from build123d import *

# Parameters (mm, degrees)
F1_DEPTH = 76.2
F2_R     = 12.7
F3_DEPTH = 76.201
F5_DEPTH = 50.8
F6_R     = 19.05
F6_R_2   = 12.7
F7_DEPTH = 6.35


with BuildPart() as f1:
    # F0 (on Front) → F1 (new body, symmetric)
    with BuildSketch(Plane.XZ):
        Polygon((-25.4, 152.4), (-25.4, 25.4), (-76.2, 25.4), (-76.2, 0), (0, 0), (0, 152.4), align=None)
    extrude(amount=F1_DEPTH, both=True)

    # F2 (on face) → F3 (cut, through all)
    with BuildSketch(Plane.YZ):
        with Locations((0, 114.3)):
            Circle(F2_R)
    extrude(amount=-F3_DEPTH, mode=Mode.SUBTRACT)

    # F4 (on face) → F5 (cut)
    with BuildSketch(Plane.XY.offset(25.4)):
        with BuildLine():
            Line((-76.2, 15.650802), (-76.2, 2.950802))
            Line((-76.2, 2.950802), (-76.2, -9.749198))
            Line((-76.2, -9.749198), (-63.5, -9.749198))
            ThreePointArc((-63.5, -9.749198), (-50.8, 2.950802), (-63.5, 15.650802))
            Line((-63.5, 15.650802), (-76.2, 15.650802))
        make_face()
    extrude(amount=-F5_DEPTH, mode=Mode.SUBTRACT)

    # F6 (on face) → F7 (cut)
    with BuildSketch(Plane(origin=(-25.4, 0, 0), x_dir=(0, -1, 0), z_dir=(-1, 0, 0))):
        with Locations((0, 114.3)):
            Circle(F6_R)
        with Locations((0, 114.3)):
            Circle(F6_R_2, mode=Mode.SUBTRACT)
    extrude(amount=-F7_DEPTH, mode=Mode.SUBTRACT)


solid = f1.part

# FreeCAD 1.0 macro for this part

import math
import FreeCAD as App
import Part
import Sketcher
from FreeCAD import Vector
Q = App.Units.Quantity


def add_polygon(sketch, points):
    """Adds a closed chain of lines whose ends are joined by coincident constraints."""
    first, n = sketch.GeometryCount, len(points)
    for a, b in zip(points, points[1:] + points[:1]):
        sketch.addGeometry(Part.LineSegment(App.Vector(*a, 0), App.Vector(*b, 0)), False)
    for i in range(n):
        sketch.addConstraint(Sketcher.Constraint("Coincident", first + i, 2, first + (i + 1) % n, 1))

doc = App.newDocument("Part")
params = doc.addObject("Spreadsheet::Sheet", "Params")
for row, (alias, value) in enumerate([
    ("sketch1_width", "2 in"),
    ("sketch1_width2", "3 in"),
    ("sketch1_height", "5 in"),
    ("pad1_length", "6 in"),
    ("sketch2_diameter", "1 in"),
    ("sketch3_radius", "0.5 in"),
    ("sketch3_width", "0.5 in"),
    ("pocket2_length", "2 in"),
    ("sketch4_diameter", "1 in"),
    ("sketch4_diameter2", "1.5 in"),
    ("pocket3_length", "0.25 in"),
], start=1):
    params.set(f"A{row}", alias)
    params.set(f"B{row}", "=" + value)
    params.setAlias(f"B{row}", alias)

body = doc.addObject("PartDesign::Body", "Body")

sketch1 = body.newObject("Sketcher::SketchObject", "Sketch")
sketch1.AttachmentSupport = (doc.getObject("XZ_Plane"), [""])
sketch1.MapMode = "FlatFace"
add_polygon(sketch1, [(-25, 152), (-25, 25), (-76, 25), (-76, 0), (0, 0), (0, 152)])
sketch1.addConstraint(Sketcher.Constraint("Vertical", 0))
sketch1.addConstraint(Sketcher.Constraint("Horizontal", 1))
sketch1.addConstraint(Sketcher.Constraint("Vertical", 2))
sketch1.addConstraint(Sketcher.Constraint("Horizontal", 3))
sketch1.addConstraint(Sketcher.Constraint("Vertical", 4))
sketch1.addConstraint(Sketcher.Constraint("Horizontal", 5))
sketch1.addConstraint(Sketcher.Constraint("Coincident", 3, 2, -1, 1))
sketch1.addConstraint(Sketcher.Constraint("Equal", 5, 2))
sketch1.addConstraint(Sketcher.Constraint("DistanceX", 1, 2, 1, 1, Q("2 in")))
sketch1.addConstraint(Sketcher.Constraint("DistanceX", 3, 1, 3, 2, Q("3 in")))
sketch1.addConstraint(Sketcher.Constraint("DistanceY", 0, 2, 0, 1, Q("5 in")))
sketch1.setExpression("Constraints[14]", "Params.sketch1_width")
sketch1.setExpression("Constraints[15]", "Params.sketch1_width2")
sketch1.setExpression("Constraints[16]", "Params.sketch1_height")
pad1 = body.newObject("PartDesign::Pad", "Pad")
pad1.Profile = sketch1
pad1.setExpression("Length", "Params.pad1_length")
pad1.Midplane = True

sketch2 = body.newObject("Sketcher::SketchObject", "Sketch001")
sketch2.AttachmentSupport = (doc.getObject("YZ_Plane"), [""])
sketch2.MapMode = "FlatFace"
sketch2.addGeometry(Part.Circle(Vector(0, 114, 0), Vector(0, 0, 1), 13), False)
sketch2.addConstraint(Sketcher.Constraint("PointOnObject", 0, 3, -2))
sketch2.addConstraint(Sketcher.Constraint("Diameter", 0, Q("1 in")))
sketch2.addConstraint(Sketcher.Constraint("DistanceY", -1, 1, 0, 3, Q("4.5 in")))
sketch2.setExpression("Constraints[1]", "Params.sketch2_diameter")
pocket1 = body.newObject("PartDesign::Pocket", "Pocket")
pocket1.Profile = sketch2
pocket1.Type = "ThroughAll"

sketch3 = body.newObject("Sketcher::SketchObject", "Sketch002")
sketch3.AttachmentSupport = (doc.getObject("XY_Plane"), [""])
sketch3.MapMode = "FlatFace"
sketch3.AttachmentOffset = App.Placement(Vector(0, 0, 1 * 25.4), App.Rotation())
sketch3.addGeometry(Part.LineSegment(Vector(-76, 16, 0), Vector(-76, -10, 0)), False)
sketch3.addGeometry(Part.LineSegment(Vector(-76, -10, 0), Vector(-64, -10, 0)), False)
sketch3.addGeometry(Part.ArcOfCircle(Part.Circle(Vector(-64, 3, 0), Vector(0, 0, 1), 13), math.radians(-90), math.radians(90)), False)
sketch3.addGeometry(Part.LineSegment(Vector(-64, 16, 0), Vector(-76, 16, 0)), False)
sketch3.addConstraint(Sketcher.Constraint("Coincident", 0, 2, 1, 1))
sketch3.addConstraint(Sketcher.Constraint("Tangent", 1, 2, 2, 1))
sketch3.addConstraint(Sketcher.Constraint("Tangent", 2, 2, 3, 1))
sketch3.addConstraint(Sketcher.Constraint("Coincident", 3, 2, 0, 1))
sketch3.addConstraint(Sketcher.Constraint("Vertical", 0))
sketch3.addConstraint(Sketcher.Constraint("Horizontal", 1))
sketch3.addConstraint(Sketcher.Constraint("Horizontal", 3))
sketch3.addConstraint(Sketcher.Constraint("Radius", 2, Q("0.5 in")))
sketch3.addConstraint(Sketcher.Constraint("DistanceX", 1, 1, 1, 2, Q("0.5 in")))
sketch3.addConstraint(Sketcher.Constraint("DistanceX", 0, 2, -1, 1, Q("3 in")))
sketch3.addConstraint(Sketcher.Constraint("DistanceY", -1, 1, 2, 3, Q("2.950802 mm")))
sketch3.setExpression("Constraints[7]", "Params.sketch3_radius")
sketch3.setExpression("Constraints[8]", "Params.sketch3_width")
pocket2 = body.newObject("PartDesign::Pocket", "Pocket001")
pocket2.Profile = sketch3
pocket2.setExpression("Length", "Params.pocket2_length")

sketch4 = body.newObject("Sketcher::SketchObject", "Sketch003")
sketch4.AttachmentSupport = (doc.getObject("YZ_Plane"), [""])
sketch4.MapMode = "FlatFace"
sketch4.AttachmentOffset = App.Placement(Vector(0, 0, -1 * 25.4), App.Rotation())
sketch4.addGeometry(Part.Circle(Vector(0, 114, 0), Vector(0, 0, 1), 19), False)
sketch4.addGeometry(Part.Circle(Vector(0, 114, 0), Vector(0, 0, 1), 13), False)
sketch4.addConstraint(Sketcher.Constraint("Coincident", 1, 3, 0, 3))
sketch4.addConstraint(Sketcher.Constraint("PointOnObject", 0, 3, -2))
sketch4.addConstraint(Sketcher.Constraint("Diameter", 1, Q("1 in")))
sketch4.addConstraint(Sketcher.Constraint("Diameter", 0, Q("1.5 in")))
sketch4.addConstraint(Sketcher.Constraint("DistanceY", -1, 1, 0, 3, Q("4.5 in")))
sketch4.setExpression("Constraints[2]", "Params.sketch4_diameter")
sketch4.setExpression("Constraints[3]", "Params.sketch4_diameter2")
pocket3 = body.newObject("PartDesign::Pocket", "Pocket002")
pocket3.Profile = sketch4
pocket3.setExpression("Length", "Params.pocket3_length")
pocket3.Reversed = True

doc.recompute()
